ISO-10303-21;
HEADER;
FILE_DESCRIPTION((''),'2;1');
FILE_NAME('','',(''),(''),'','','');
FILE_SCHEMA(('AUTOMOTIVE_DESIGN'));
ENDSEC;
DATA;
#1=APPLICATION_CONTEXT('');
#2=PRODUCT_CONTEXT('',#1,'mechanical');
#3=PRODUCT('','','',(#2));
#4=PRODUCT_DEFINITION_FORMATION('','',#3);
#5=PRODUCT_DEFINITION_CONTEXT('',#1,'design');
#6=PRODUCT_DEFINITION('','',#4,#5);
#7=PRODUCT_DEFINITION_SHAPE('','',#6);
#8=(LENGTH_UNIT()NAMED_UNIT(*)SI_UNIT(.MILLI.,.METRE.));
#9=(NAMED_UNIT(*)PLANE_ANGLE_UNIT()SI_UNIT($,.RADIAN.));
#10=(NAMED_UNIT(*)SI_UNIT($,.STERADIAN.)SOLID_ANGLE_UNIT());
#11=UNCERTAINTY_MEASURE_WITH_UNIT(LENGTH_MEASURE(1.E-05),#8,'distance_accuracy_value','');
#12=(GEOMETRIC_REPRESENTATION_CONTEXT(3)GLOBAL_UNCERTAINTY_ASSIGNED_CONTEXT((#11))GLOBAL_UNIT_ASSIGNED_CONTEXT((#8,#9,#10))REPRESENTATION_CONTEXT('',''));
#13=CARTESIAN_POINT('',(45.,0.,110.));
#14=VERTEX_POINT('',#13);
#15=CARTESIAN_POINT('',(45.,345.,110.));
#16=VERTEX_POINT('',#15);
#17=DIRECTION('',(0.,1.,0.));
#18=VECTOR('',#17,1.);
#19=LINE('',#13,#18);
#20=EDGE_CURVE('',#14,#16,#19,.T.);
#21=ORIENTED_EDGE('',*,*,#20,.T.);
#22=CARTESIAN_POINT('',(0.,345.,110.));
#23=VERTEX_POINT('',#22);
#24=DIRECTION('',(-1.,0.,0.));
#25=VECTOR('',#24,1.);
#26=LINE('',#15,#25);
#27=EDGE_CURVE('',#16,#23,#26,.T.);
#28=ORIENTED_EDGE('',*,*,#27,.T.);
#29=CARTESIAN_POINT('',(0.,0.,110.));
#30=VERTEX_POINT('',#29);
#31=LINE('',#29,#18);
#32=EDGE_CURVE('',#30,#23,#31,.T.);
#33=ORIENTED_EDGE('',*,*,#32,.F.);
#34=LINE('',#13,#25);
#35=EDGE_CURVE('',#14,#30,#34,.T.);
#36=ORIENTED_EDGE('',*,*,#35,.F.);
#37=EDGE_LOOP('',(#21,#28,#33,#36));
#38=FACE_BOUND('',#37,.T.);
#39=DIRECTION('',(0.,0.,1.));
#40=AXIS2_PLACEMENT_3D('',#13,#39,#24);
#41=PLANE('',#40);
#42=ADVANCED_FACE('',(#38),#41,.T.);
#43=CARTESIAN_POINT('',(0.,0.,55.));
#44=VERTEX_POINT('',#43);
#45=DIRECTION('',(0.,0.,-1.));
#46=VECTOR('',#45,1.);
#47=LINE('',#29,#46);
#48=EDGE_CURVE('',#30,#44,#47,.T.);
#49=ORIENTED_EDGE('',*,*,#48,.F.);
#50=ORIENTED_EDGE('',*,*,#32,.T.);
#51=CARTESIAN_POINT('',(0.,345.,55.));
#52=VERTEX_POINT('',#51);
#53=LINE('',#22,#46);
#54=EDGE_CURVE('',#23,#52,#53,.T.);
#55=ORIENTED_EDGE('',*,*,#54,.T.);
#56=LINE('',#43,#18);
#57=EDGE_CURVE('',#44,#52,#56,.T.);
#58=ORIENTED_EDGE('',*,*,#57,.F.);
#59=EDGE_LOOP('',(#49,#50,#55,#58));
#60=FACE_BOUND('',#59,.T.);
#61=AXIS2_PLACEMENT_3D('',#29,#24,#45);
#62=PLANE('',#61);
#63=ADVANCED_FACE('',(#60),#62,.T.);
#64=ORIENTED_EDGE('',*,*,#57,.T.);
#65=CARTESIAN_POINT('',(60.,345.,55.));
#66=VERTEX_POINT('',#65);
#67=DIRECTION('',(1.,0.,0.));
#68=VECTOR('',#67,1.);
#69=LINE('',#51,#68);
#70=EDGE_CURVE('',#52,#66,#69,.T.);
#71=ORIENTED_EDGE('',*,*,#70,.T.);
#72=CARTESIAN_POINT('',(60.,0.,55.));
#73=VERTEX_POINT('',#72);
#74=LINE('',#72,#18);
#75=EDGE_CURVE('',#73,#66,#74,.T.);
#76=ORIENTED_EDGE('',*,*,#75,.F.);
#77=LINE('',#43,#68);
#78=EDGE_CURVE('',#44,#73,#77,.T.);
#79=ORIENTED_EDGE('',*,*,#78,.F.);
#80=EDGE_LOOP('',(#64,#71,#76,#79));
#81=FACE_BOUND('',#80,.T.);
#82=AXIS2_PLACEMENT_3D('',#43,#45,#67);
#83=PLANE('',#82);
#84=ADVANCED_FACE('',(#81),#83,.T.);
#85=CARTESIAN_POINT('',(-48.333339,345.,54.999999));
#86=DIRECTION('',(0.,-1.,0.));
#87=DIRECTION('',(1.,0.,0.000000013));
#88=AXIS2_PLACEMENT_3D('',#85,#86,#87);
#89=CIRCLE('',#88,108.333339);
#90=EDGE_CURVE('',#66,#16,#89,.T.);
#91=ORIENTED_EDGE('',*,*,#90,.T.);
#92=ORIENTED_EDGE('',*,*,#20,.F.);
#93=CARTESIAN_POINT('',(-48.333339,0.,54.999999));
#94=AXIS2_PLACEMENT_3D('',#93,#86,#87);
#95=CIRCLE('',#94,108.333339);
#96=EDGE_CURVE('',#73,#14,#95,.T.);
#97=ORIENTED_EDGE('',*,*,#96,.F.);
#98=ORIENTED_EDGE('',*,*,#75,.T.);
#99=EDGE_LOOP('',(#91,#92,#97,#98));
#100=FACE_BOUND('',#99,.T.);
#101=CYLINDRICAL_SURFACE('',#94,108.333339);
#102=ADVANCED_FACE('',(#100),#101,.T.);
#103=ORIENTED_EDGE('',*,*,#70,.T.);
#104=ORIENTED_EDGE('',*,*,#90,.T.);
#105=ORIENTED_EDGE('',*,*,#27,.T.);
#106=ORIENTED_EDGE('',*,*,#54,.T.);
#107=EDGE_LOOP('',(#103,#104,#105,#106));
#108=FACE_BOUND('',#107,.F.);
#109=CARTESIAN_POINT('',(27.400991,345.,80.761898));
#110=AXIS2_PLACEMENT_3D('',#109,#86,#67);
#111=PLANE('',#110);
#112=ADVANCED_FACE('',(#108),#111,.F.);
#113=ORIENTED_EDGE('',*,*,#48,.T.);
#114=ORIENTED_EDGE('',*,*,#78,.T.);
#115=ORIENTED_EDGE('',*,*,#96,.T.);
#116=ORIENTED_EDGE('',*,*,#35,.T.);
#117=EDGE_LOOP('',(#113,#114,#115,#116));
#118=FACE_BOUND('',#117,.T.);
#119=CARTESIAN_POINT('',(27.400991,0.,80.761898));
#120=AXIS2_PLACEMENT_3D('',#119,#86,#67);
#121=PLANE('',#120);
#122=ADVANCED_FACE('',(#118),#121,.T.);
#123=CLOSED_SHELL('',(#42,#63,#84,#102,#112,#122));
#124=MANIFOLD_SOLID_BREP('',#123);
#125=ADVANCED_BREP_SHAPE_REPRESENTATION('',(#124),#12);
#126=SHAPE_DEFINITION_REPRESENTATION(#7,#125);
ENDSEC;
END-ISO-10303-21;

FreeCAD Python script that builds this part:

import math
import FreeCAD as App
import Part
import Sketcher
from FreeCAD import Vector

doc = App.newDocument("Part")
body = doc.addObject("PartDesign::Body", "Body")

sketch1 = body.newObject("Sketcher::SketchObject", "Sketch")
sketch1.AttachmentSupport = (doc.getObject("XZ_Plane"), [""])
sketch1.MapMode = "FlatFace"
sketch1.addGeometry([
    Part.LineSegment(Vector(0, 110, 0), Vector(0, 55, 0)),
    Part.LineSegment(Vector(0, 55, 0), Vector(60, 55, 0)),
    Part.ArcOfCircle(Part.Circle(Vector(-48, 55, 0), Vector(0, 0, 1), 108), math.radians(0), math.radians(31)),
    Part.LineSegment(Vector(45, 110, 0), Vector(0, 110, 0)),
], False)
sketch1.addConstraint([
    Sketcher.Constraint("Coincident", 0, 2, 1, 1),
    Sketcher.Constraint("Coincident", 1, 2, 2, 1),
    Sketcher.Constraint("Coincident", 2, 2, 3, 1),
    Sketcher.Constraint("Coincident", 3, 2, 0, 1),
    Sketcher.Constraint("Vertical", 0),
    Sketcher.Constraint("Horizontal", 1),
    Sketcher.Constraint("Horizontal", 3),
    Sketcher.Constraint("PointOnObject", 0, 2, -2),
    Sketcher.Constraint("Horizontal", 2, 3, 0, 2),
    Sketcher.Constraint("DistanceX", 1, 1, 1, 2, 60.0),
    Sketcher.Constraint("DistanceX", 3, 2, 3, 1, 45.0),
    Sketcher.Constraint("DistanceY", 0, 2, 0, 1, 55.0),
    Sketcher.Constraint("DistanceY", -1, 1, 2, 3, 54.999999),
])
pad1 = body.newObject("PartDesign::Pad", "Pad")
pad1.Profile = sketch1
pad1.Length = 345
pad1.Reversed = True

doc.recompute()
